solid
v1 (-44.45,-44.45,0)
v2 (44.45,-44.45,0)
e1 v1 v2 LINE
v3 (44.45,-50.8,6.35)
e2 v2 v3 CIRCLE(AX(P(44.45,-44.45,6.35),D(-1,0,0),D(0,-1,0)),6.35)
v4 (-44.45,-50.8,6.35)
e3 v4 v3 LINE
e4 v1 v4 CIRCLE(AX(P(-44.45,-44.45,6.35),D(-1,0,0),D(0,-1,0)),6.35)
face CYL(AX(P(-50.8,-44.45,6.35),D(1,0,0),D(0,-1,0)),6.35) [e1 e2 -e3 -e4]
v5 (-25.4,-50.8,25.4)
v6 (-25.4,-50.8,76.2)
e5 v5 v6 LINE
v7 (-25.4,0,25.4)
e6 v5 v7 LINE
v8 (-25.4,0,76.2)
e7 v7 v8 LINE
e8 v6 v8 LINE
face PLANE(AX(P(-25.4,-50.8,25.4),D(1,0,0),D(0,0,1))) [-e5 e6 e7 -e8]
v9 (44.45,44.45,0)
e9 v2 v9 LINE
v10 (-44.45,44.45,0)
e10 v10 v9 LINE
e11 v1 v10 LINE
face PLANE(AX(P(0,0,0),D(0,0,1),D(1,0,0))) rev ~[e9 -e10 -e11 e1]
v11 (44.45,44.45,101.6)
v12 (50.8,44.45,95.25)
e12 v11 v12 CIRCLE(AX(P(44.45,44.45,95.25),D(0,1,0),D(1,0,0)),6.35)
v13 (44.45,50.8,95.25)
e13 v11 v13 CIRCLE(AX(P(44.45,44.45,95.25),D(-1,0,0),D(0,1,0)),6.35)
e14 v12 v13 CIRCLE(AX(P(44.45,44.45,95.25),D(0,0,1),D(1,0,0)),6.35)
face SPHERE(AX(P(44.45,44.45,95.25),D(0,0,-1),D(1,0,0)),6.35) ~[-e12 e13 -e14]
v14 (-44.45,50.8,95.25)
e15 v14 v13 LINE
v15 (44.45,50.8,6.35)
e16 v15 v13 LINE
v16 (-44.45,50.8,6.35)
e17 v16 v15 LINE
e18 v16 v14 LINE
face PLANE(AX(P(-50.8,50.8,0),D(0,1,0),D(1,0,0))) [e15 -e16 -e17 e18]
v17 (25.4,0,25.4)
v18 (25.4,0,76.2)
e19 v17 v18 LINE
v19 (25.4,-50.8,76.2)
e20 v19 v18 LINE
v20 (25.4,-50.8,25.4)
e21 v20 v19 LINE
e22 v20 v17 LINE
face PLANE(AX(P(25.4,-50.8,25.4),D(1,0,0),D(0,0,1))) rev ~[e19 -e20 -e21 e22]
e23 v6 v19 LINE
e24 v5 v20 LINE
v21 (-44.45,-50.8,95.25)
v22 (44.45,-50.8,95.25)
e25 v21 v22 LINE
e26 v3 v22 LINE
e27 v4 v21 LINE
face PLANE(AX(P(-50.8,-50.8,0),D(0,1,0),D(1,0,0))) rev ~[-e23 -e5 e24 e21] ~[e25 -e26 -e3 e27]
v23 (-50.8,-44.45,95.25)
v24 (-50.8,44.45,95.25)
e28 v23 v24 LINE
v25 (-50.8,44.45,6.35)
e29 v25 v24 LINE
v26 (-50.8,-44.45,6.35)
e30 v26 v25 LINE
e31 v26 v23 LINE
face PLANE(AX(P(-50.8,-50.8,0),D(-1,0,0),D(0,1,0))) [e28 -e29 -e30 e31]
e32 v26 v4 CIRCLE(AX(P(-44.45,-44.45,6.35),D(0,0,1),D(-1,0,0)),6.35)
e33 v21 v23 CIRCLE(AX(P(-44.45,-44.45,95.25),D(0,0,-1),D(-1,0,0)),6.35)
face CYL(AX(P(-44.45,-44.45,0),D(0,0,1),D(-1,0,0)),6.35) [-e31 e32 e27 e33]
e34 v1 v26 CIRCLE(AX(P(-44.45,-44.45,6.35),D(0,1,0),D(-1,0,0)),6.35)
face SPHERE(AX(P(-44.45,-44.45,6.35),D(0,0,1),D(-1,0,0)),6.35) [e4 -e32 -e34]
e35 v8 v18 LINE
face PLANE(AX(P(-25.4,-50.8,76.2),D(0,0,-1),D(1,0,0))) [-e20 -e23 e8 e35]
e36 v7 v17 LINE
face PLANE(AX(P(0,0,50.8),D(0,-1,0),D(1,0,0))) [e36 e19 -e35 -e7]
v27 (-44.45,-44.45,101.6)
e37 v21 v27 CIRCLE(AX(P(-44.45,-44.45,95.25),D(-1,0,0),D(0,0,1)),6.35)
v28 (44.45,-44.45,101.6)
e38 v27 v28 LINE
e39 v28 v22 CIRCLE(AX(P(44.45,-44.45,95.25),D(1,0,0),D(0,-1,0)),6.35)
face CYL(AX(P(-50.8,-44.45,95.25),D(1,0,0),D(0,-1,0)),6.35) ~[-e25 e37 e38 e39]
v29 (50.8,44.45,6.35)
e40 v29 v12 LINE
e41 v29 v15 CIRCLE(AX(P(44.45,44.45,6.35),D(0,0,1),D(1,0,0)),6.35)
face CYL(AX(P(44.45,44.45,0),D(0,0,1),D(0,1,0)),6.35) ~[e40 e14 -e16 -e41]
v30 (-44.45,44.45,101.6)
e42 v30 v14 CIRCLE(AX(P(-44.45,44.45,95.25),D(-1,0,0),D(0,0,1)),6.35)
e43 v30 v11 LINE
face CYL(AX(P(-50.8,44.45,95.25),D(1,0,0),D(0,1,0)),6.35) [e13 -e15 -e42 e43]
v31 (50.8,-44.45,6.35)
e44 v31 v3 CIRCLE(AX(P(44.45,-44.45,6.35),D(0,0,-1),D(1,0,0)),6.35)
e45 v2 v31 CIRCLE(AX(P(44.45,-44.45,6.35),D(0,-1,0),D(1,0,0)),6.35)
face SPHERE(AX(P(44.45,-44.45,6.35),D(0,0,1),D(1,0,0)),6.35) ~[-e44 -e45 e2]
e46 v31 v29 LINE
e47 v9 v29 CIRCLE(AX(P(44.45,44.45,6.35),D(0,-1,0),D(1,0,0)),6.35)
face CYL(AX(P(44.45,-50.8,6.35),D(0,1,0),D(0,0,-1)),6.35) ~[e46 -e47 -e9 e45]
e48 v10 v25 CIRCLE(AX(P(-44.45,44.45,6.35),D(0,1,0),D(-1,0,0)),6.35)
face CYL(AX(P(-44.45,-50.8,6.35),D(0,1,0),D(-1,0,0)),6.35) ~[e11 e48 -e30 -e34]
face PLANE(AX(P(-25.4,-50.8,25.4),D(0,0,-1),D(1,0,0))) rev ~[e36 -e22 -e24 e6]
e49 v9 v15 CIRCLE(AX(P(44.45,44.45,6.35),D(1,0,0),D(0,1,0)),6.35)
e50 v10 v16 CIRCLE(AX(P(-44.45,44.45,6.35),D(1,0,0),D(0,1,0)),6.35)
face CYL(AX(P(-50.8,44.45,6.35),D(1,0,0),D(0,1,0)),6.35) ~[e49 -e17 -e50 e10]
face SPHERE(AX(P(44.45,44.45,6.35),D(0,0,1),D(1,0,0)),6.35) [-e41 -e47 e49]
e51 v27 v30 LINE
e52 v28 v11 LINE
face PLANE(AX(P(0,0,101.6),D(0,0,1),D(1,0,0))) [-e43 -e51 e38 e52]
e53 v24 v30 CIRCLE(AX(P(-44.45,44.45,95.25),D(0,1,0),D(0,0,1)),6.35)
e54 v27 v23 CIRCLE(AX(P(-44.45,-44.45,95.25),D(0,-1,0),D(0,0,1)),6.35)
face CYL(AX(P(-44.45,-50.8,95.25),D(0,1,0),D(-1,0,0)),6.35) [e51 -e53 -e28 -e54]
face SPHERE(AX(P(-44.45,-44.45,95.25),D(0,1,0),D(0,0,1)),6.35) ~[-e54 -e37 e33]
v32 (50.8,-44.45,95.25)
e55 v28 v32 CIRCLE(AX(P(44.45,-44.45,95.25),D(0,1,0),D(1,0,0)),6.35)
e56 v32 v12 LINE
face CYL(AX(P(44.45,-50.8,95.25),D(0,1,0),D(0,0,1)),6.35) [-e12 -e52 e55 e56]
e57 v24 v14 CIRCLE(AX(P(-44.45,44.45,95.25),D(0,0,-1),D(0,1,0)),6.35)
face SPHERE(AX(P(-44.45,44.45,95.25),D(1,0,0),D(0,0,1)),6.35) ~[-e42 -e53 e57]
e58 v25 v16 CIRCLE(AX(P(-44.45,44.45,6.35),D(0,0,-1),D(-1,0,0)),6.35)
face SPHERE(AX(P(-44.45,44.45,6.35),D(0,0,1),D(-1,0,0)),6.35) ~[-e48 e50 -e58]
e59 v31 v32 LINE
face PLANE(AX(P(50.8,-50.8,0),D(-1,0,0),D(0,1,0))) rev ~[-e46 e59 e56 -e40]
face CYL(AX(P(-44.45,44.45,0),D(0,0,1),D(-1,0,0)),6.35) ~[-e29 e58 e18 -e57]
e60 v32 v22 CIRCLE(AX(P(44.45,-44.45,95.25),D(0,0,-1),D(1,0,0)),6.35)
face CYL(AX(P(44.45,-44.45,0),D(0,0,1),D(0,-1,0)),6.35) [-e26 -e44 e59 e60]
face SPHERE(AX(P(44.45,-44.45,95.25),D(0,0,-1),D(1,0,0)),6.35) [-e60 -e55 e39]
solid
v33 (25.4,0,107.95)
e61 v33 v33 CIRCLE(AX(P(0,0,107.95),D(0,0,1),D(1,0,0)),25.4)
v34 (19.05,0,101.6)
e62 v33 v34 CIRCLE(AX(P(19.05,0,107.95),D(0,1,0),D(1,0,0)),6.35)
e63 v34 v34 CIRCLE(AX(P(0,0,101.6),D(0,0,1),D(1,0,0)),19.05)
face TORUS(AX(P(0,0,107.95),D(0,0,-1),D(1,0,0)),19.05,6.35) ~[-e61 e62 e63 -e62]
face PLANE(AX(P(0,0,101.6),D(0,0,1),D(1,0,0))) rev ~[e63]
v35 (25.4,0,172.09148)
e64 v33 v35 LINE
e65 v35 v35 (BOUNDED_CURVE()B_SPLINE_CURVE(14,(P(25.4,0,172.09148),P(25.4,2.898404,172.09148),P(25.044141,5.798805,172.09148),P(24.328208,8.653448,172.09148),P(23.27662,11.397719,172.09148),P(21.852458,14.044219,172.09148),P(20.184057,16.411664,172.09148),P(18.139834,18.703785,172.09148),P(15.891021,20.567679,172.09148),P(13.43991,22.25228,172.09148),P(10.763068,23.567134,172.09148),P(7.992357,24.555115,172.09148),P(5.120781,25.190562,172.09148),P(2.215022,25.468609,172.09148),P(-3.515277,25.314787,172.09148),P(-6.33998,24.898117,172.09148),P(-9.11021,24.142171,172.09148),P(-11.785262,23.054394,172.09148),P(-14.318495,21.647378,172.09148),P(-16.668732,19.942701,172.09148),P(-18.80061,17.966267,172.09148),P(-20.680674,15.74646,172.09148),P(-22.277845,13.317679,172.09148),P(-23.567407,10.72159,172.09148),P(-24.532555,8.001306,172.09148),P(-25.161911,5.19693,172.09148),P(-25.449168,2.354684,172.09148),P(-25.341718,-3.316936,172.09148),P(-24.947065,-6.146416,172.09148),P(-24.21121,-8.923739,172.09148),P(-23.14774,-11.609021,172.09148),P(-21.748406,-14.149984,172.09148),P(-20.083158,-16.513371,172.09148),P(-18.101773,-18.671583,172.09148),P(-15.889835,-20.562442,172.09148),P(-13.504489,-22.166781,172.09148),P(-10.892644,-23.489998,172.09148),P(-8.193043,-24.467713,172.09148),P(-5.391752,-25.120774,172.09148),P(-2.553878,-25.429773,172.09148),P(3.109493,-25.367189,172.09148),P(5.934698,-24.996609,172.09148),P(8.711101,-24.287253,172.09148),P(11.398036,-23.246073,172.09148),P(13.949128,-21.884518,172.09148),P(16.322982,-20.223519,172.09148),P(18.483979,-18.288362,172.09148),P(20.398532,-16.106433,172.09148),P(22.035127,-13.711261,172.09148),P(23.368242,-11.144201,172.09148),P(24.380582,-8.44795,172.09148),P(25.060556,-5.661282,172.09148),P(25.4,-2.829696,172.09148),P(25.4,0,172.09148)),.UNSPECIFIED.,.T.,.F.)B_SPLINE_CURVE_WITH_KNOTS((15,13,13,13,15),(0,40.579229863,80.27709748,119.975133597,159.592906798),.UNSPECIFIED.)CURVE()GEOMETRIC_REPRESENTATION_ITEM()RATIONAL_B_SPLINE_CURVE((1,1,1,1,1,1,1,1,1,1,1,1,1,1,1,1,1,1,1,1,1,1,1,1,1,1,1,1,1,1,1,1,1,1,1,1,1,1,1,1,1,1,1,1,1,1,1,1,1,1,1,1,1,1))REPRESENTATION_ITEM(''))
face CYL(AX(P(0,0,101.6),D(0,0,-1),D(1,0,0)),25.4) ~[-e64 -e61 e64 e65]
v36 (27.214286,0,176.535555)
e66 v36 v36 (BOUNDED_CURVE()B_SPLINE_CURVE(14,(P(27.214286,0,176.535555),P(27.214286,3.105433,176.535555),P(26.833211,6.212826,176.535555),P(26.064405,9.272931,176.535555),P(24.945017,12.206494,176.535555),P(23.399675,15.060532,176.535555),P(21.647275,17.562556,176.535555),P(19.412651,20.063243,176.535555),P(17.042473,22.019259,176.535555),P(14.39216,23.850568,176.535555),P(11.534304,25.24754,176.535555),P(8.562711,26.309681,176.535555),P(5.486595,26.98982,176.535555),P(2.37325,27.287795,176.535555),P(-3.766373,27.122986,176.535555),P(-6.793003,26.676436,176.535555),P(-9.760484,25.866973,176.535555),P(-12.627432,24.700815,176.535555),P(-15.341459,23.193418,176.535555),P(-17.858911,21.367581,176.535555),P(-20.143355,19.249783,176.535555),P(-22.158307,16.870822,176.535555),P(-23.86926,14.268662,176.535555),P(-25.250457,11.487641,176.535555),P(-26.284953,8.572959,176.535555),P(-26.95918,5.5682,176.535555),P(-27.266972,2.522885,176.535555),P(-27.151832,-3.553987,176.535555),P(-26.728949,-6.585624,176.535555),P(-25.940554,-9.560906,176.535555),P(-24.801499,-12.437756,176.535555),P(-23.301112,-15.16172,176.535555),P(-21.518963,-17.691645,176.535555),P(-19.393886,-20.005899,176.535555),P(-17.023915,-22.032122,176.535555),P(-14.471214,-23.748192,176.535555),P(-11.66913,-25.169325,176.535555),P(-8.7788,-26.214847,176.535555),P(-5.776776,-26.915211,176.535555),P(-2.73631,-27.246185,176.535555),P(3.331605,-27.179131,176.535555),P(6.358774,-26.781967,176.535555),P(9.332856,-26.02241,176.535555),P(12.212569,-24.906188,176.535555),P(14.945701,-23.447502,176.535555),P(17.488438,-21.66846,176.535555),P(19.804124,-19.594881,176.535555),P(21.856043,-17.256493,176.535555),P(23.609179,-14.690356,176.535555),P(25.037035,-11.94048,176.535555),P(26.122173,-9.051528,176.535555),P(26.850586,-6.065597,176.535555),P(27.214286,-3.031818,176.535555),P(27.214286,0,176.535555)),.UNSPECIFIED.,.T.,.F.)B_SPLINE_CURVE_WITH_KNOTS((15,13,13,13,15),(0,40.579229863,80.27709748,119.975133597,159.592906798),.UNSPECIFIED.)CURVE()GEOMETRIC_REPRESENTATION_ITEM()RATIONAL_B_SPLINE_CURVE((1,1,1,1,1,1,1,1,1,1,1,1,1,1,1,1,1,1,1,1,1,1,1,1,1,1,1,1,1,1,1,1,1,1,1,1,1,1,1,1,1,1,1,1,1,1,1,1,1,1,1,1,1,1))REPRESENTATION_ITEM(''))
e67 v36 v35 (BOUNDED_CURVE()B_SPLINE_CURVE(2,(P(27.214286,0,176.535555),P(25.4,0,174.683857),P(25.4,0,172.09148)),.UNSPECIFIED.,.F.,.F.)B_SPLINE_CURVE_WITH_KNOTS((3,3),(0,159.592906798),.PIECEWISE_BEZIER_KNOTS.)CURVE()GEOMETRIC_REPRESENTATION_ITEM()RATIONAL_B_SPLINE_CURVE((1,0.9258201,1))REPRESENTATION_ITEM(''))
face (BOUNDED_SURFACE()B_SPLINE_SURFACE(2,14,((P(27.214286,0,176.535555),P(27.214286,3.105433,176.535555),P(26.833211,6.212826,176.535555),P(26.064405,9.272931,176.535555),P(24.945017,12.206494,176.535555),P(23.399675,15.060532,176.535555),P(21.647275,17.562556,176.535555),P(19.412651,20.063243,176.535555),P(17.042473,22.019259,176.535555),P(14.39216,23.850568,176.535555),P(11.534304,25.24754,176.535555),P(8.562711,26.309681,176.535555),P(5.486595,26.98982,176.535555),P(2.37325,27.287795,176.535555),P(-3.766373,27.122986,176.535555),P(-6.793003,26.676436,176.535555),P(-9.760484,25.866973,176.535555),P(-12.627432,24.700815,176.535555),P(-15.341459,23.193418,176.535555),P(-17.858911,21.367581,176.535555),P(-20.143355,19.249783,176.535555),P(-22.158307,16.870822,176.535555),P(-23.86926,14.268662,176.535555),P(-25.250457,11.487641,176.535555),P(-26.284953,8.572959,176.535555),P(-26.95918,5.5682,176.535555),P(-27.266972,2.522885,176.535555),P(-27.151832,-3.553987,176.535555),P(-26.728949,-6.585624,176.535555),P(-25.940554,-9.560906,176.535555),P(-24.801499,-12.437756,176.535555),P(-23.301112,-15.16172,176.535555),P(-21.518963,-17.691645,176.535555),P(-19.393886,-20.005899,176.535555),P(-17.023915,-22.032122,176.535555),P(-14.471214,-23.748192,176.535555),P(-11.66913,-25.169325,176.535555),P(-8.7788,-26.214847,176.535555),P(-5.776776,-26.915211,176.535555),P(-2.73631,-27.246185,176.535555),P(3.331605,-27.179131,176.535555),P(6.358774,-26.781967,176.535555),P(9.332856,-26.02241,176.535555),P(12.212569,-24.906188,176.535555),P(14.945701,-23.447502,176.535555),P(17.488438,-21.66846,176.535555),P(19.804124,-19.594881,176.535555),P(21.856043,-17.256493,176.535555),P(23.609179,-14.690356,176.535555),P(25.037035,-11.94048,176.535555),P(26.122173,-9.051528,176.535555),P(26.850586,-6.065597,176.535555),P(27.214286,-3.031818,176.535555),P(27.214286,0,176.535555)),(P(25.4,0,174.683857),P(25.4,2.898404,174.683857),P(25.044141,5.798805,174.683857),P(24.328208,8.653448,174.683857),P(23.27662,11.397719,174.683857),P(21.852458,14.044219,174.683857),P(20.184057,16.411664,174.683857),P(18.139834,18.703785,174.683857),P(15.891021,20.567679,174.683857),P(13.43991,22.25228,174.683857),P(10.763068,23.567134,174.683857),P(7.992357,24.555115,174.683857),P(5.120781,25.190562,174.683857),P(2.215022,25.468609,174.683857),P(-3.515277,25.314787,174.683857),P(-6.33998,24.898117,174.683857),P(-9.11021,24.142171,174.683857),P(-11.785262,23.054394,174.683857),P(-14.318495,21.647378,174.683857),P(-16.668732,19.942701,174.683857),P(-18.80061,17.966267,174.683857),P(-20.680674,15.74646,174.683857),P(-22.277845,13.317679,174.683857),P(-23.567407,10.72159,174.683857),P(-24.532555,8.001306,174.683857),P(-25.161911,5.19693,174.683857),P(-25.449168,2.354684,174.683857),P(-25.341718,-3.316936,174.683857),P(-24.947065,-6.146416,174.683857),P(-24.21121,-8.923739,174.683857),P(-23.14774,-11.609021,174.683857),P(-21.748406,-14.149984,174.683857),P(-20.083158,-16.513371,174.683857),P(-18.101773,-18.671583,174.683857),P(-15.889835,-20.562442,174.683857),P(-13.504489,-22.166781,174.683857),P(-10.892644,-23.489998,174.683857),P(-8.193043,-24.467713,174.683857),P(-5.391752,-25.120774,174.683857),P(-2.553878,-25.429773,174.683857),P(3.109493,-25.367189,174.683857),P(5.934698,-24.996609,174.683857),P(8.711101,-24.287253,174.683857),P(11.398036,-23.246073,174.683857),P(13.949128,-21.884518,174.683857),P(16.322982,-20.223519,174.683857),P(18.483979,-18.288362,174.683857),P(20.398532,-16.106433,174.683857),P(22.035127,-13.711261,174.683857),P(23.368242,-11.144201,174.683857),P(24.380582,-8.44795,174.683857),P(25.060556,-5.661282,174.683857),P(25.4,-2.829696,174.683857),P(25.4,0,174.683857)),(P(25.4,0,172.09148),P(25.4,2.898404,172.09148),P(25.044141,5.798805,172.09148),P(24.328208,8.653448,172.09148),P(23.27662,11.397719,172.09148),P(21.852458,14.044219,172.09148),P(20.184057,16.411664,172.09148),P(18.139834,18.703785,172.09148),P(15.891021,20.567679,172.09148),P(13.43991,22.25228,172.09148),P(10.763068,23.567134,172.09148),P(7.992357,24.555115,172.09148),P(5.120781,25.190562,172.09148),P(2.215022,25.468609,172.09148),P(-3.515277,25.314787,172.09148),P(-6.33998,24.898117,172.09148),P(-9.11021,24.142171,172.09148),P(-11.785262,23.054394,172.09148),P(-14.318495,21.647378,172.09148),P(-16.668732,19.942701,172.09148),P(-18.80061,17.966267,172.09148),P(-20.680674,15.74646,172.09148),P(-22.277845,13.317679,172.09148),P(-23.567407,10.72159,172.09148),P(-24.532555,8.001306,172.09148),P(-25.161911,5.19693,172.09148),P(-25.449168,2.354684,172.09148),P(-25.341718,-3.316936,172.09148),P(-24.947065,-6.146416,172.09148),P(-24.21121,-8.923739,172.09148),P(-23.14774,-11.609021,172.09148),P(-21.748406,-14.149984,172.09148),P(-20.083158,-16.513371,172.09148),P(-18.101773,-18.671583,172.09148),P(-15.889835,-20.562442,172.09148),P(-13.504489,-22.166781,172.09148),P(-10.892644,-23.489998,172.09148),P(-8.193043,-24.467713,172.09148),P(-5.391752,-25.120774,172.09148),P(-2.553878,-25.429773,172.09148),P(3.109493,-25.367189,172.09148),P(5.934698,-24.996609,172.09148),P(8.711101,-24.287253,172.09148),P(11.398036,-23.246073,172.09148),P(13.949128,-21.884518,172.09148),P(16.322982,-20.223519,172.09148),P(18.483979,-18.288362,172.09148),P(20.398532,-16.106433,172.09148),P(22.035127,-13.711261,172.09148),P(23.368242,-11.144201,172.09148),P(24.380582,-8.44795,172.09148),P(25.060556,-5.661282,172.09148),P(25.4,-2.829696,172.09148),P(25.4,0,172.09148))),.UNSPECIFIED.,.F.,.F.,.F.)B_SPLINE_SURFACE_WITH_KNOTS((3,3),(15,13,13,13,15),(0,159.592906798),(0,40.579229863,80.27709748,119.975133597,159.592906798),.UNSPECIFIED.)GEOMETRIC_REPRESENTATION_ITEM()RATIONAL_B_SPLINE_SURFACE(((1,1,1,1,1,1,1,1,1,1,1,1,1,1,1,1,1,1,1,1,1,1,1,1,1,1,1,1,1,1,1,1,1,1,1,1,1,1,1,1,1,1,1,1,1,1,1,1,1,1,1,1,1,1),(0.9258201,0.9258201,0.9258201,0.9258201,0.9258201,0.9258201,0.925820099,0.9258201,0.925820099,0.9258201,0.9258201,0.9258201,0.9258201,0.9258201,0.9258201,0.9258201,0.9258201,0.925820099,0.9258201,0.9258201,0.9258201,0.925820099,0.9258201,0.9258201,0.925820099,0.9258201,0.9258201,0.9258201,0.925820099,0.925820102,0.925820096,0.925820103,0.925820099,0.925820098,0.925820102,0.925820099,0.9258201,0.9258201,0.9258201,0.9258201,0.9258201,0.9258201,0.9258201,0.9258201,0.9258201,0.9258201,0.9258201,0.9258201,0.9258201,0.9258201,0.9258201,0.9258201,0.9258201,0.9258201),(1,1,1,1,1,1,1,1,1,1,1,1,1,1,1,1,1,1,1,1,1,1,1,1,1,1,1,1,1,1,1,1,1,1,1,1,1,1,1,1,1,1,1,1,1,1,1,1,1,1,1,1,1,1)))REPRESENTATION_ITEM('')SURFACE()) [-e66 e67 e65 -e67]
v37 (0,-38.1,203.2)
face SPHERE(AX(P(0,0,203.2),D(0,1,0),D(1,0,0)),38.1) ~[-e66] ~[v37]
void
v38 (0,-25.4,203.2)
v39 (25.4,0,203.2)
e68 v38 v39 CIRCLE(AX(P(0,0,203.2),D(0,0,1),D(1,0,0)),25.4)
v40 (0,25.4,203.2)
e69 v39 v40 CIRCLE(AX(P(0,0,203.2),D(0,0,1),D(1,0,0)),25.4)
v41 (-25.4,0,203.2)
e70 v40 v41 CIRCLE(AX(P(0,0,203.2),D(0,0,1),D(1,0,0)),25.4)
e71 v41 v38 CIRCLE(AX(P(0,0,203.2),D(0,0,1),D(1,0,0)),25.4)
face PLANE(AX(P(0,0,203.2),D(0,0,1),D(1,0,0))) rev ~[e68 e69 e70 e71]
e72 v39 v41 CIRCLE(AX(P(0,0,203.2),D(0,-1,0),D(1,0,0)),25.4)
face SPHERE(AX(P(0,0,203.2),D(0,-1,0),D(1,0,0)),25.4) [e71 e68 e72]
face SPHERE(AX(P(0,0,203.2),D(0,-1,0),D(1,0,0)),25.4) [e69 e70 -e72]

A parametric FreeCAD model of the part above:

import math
import FreeCAD as App
import Part
import Sketcher
Q = App.Units.Quantity


def edges_at(feature, points):
    """Names of the edges that pass closest to the given points."""
    edges = feature.Shape.Edges
    near = lambda p: min(range(len(edges)), key=lambda i: edges[i].distToShape(Part.Vertex(*p))[0])
    return sorted({f"Edge{near(p) + 1}" for p in points})

doc = App.newDocument("Part")
body = doc.addObject("PartDesign::Body", "Body")

# Sketch on XY plane
sketch1 = body.newObject("Sketcher::SketchObject", "Sketch")
sketch1.AttachmentSupport = (doc.getObject("XY_Plane"), [""])
sketch1.MapMode = "FlatFace"
sketch1.addGeometry([
    Part.LineSegment(App.Vector(-51, 51, 0), App.Vector(-51, -51, 0)),
    Part.LineSegment(App.Vector(-51, -51, 0), App.Vector(51, -51, 0)),
    Part.LineSegment(App.Vector(51, -51, 0), App.Vector(51, 51, 0)),
    Part.LineSegment(App.Vector(51, 51, 0), App.Vector(-51, 51, 0)),
], False)
sketch1.addConstraint([
    Sketcher.Constraint("Coincident", 0, 2, 1, 1),
    Sketcher.Constraint("Coincident", 1, 2, 2, 1),
    Sketcher.Constraint("Coincident", 2, 2, 3, 1),
    Sketcher.Constraint("Coincident", 3, 2, 0, 1),
    Sketcher.Constraint("Vertical", 0),
    Sketcher.Constraint("Horizontal", 1),
    Sketcher.Constraint("Vertical", 2),
    Sketcher.Constraint("Horizontal", 3),
    Sketcher.Constraint("Symmetric", 0, 2, 2, 2, -1, 1),
    Sketcher.Constraint("Equal", 3, 0),
    Sketcher.Constraint("DistanceX", 1, 1, 1, 2, Q("4 in")),
])
pad1 = body.newObject("PartDesign::Pad", "Pad")
pad1.Profile = sketch1
pad1.Length = Q("4 in")

# Sketch on XZ plane
sketch2 = body.newObject("Sketcher::SketchObject", "Sketch001")
sketch2.AttachmentSupport = (doc.getObject("XZ_Plane"), [""])
sketch2.MapMode = "FlatFace"
sketch2.AttachmentOffset = App.Placement(App.Vector(0, 0, 2 * 25.4), App.Rotation())
sketch2.addGeometry([
    Part.LineSegment(App.Vector(-25, 76, 0), App.Vector(-25, 25, 0)),
    Part.LineSegment(App.Vector(-25, 25, 0), App.Vector(25, 25, 0)),
    Part.LineSegment(App.Vector(25, 25, 0), App.Vector(25, 76, 0)),
    Part.LineSegment(App.Vector(25, 76, 0), App.Vector(-25, 76, 0)),
], False)
sketch2.addConstraint([
    Sketcher.Constraint("Coincident", 0, 2, 1, 1),
    Sketcher.Constraint("Coincident", 1, 2, 2, 1),
    Sketcher.Constraint("Coincident", 2, 2, 3, 1),
    Sketcher.Constraint("Coincident", 3, 2, 0, 1),
    Sketcher.Constraint("Vertical", 0),
    Sketcher.Constraint("Horizontal", 1),
    Sketcher.Constraint("Vertical", 2),
    Sketcher.Constraint("Horizontal", 3),
    Sketcher.Constraint("Equal", 3, 0),
    Sketcher.Constraint("DistanceX", 1, 1, 1, 2, Q("2 in")),
    Sketcher.Constraint("DistanceX", 0, 2, -1, 1, Q("1 in")),
    Sketcher.Constraint("DistanceY", -1, 1, 0, 2, Q("1 in")),
])
pocket1 = body.newObject("PartDesign::Pocket", "Pocket")
pocket1.Profile = sketch2
pocket1.Length = Q("2 in")
doc.recompute()

fillet = body.newObject("PartDesign::Fillet", "Fillet")
fillet.Base = (pocket1, edges_at(pocket1, [
    (50.8, -50.8, 50.8),
    (50.8, 50.8, 50.8),
    (50.8, 0, 0),
    (50.8, 0, 101.6),
    (0, 50.8, 101.6),
    (-50.8, 0, 101.6),
    (0, -50.8, 101.6),
    (-50.8, 50.8, 50.8),
    (-50.8, -50.8, 50.8),
    (-50.8, 0, 0),
    (0, 50.8, 0),
    (0, -50.8, 0),
]))
fillet.Radius = Q("0.25 in")
body2 = doc.addObject("PartDesign::Body", "Body001")

# Sketch on XY plane
sketch3 = body2.newObject("Sketcher::SketchObject", "Sketch002")
sketch3.AttachmentSupport = (doc.getObject("XY_Plane001"), [""])
sketch3.MapMode = "FlatFace"
sketch3.AttachmentOffset = App.Placement(App.Vector(0, 0, 4 * 25.4), App.Rotation())
sketch3.addGeometry(Part.Circle(App.Vector(0, 0, 0), App.Vector(0, 0, 1), 25), False)
sketch3.addConstraint([
    Sketcher.Constraint("Coincident", 0, 3, -1, 1),
    Sketcher.Constraint("Diameter", 0, Q("2 in")),
])
pad2 = body2.newObject("PartDesign::Pad", "Pad001")
pad2.Profile = sketch3
pad2.Length = Q("4 in")

# Sketch on XY plane
sketch4 = body2.newObject("Sketcher::SketchObject", "Sketch003")
sketch4.AttachmentSupport = (doc.getObject("XY_Plane001"), [""])
sketch4.MapMode = "FlatFace"
sketch4.AttachmentOffset = App.Placement(App.Vector(0, 0, 8 * 25.4), App.Rotation())
sketch4.addGeometry([
    Part.LineSegment(App.Vector(0, -25, 0), App.Vector(0, -38, 0)),  # 0
    Part.ArcOfCircle(Part.Circle(App.Vector(0, 0, 0), App.Vector(0, 0, 1), 38), math.radians(-90), math.radians(90)),  # 1
    Part.LineSegment(App.Vector(0, 38, 0), App.Vector(0, 25, 0)),  # 2
    Part.ArcOfCircle(Part.Circle(App.Vector(0, 0, 0), App.Vector(0, 0, 1), 25), math.radians(0), math.radians(90)),  # 3
    Part.ArcOfCircle(Part.Circle(App.Vector(0, 0, 0), App.Vector(0, 0, 1), 25), math.radians(-90), math.radians(0)),  # 4
], False)
sketch4.addConstraint([
    Sketcher.Constraint("Coincident", 0, 2, 1, 1),
    Sketcher.Constraint("Coincident", 1, 2, 2, 1),
    Sketcher.Constraint("Coincident", 2, 2, 3, 2),
    Sketcher.Constraint("Tangent", 3, 1, 4, 2),
    Sketcher.Constraint("Coincident", 4, 1, 0, 1),
    Sketcher.Constraint("Vertical", 0),
    Sketcher.Constraint("Vertical", 2),
    Sketcher.Constraint("Coincident", 1, 3, -1, 1),
    Sketcher.Constraint("Coincident", 3, 3, -1, 1),
    Sketcher.Constraint("Equal", 3, 4),
    Sketcher.Constraint("PointOnObject", 0, 2, -2),
    Sketcher.Constraint("PointOnObject", 1, 2, -2),
    Sketcher.Constraint("PointOnObject", 3, 1, -1),
    Sketcher.Constraint("Radius", 3, Q("1 in")),
    Sketcher.Constraint("Radius", 1, Q("1.5 in")),
])
revolution = body2.newObject("PartDesign::Revolution", "Revolution")
revolution.Profile = sketch4
revolution.ReferenceAxis = (sketch4, ["V_Axis"])
revolution.Angle = 360
doc.recompute()

fillet2 = body2.newObject("PartDesign::Fillet", "Fillet001")
fillet2.Base = (revolution, edges_at(revolution, [(-25.4, 0, 101.6), (-25.4, 0, 174.802)]))
fillet2.Radius = Q("0.25 in")

doc.recompute()
